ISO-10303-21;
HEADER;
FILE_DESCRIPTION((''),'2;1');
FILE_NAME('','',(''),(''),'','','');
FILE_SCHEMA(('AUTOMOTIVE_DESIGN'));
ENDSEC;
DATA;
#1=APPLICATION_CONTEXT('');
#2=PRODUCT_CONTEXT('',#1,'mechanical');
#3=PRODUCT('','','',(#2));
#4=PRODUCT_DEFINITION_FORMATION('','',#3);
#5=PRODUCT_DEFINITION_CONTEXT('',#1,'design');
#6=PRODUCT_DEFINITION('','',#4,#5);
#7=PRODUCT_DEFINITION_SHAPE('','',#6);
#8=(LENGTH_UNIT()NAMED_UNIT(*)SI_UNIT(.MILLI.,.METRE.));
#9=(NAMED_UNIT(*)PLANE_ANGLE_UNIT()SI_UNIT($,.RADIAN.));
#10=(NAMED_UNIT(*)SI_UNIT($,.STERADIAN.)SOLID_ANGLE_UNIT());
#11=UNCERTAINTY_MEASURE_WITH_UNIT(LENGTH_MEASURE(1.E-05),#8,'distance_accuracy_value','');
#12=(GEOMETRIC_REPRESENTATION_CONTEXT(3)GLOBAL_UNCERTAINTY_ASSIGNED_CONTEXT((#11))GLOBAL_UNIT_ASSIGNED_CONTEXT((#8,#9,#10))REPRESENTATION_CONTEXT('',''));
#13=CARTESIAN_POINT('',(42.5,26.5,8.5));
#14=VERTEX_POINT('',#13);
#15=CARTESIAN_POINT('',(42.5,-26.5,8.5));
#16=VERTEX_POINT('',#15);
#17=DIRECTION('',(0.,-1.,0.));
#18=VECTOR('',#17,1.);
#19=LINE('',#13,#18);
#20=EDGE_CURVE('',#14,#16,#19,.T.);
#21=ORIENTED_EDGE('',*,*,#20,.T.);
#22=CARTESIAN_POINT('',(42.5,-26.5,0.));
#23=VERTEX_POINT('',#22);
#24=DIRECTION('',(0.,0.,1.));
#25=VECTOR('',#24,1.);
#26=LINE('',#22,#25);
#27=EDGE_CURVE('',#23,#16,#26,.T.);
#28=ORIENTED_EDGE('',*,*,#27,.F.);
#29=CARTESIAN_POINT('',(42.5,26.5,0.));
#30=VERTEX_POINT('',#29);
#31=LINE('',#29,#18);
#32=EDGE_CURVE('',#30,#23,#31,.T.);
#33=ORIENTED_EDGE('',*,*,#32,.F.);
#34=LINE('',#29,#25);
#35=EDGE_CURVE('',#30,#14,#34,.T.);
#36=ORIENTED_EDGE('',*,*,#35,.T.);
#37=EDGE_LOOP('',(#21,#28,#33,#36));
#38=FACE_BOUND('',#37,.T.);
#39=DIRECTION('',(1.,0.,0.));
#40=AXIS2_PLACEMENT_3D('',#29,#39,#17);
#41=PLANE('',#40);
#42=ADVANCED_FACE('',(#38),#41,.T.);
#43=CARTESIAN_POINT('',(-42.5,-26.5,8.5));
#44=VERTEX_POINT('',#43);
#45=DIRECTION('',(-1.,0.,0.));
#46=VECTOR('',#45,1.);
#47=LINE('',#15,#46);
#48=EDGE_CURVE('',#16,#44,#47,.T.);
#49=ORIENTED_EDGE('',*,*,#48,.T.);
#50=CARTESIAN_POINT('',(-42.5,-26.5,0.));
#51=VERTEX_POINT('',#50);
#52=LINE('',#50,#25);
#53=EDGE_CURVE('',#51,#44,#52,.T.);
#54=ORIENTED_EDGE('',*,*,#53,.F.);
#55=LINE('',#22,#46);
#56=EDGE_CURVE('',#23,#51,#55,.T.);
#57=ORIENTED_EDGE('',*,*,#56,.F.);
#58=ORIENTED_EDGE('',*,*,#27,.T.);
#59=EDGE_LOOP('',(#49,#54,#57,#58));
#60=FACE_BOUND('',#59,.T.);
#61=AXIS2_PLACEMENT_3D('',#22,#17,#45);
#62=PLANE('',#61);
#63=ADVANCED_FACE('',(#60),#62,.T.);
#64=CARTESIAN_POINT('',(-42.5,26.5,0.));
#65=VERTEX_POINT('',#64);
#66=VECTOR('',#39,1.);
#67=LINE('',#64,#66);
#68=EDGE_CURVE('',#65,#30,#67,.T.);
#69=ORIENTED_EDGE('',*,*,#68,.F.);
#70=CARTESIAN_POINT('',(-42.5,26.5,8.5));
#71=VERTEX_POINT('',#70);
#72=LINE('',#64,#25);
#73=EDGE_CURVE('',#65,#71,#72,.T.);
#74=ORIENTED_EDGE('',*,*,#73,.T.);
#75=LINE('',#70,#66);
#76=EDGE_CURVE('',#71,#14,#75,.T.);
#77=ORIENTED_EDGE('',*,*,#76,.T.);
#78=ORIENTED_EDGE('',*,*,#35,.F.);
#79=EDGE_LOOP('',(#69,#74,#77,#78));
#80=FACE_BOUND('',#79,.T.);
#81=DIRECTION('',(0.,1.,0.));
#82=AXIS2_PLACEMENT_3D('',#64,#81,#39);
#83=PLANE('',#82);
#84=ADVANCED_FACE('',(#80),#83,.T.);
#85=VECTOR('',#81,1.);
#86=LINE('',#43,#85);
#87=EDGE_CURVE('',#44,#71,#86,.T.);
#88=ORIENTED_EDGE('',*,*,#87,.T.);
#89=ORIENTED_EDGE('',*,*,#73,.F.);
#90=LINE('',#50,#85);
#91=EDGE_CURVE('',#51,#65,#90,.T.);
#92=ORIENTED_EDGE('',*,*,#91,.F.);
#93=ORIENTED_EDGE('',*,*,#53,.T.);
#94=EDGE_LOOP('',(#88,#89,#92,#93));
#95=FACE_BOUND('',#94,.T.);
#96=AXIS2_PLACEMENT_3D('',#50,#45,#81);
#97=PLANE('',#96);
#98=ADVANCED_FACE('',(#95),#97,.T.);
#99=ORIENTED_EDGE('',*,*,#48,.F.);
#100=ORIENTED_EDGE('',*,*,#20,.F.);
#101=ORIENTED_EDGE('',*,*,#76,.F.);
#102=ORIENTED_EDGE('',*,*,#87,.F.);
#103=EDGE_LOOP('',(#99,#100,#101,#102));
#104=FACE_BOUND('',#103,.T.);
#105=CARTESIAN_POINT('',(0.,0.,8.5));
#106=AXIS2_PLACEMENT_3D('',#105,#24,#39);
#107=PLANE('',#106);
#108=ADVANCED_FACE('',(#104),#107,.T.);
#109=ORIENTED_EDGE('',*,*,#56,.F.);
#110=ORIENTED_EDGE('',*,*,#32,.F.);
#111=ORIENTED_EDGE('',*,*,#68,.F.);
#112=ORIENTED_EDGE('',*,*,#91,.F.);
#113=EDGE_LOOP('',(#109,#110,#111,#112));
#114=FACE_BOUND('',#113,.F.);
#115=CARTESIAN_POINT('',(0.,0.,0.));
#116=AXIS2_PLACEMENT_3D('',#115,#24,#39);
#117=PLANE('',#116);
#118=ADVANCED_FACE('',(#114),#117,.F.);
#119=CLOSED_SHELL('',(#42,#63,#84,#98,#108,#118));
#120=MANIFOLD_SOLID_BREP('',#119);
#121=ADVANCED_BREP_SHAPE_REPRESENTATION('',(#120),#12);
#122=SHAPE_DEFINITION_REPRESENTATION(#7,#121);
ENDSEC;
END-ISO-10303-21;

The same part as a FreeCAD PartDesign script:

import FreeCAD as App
import Part
import Sketcher

doc = App.newDocument("Part")
params = doc.addObject("Spreadsheet::Sheet", "Params")
for row, (alias, value) in enumerate([
    ("sketch1_width", "85 mm"),
    ("sketch1_height", "53 mm"),
    ("pad1_length", "8.5 mm"),
], start=1):
    params.set(f"A{row}", alias)
    params.set(f"B{row}", "=" + value)
    params.setAlias(f"B{row}", alias)

body = doc.addObject("PartDesign::Body", "Body")

# Sketch on XY plane
sketch1 = doc.addObject("Sketcher::SketchObject", "Sketch")
body.addObject(sketch1)
sketch1.AttachmentSupport = (doc.XY_Plane, [""])
sketch1.MapMode = "FlatFace"
sketch1.addGeometry([
    Part.LineSegment(App.Vector(42, 26, 0), App.Vector(-42, 26, 0)),
    Part.LineSegment(App.Vector(-42, 26, 0), App.Vector(-42, -26, 0)),
    Part.LineSegment(App.Vector(-42, -26, 0), App.Vector(42, -26, 0)),
    Part.LineSegment(App.Vector(42, -26, 0), App.Vector(42, 26, 0)),
], False)
sketch1.addConstraint([
    Sketcher.Constraint("Coincident", 0, 2, 1, 1),
    Sketcher.Constraint("Coincident", 1, 2, 2, 1),
    Sketcher.Constraint("Coincident", 2, 2, 3, 1),
    Sketcher.Constraint("Coincident", 3, 2, 0, 1),
    Sketcher.Constraint("Horizontal", 0),
    Sketcher.Constraint("Vertical", 1),
    Sketcher.Constraint("Horizontal", 2),
    Sketcher.Constraint("Vertical", 3),
    Sketcher.Constraint("Symmetric", 0, 2, 2, 2, -1, 1),
    Sketcher.Constraint("DistanceX", 0, 2, 0, 1, 85.0),
    Sketcher.Constraint("DistanceY", 1, 2, 1, 1, 53.0),
])
sketch1.setExpression("Constraints[9]", "Params.sketch1_width")
sketch1.setExpression("Constraints[10]", "Params.sketch1_height")
pad1 = doc.addObject("PartDesign::Pad", "Pad")
body.addObject(pad1)
pad1.Profile = sketch1
pad1.setExpression("Length", "Params.pad1_length")

doc.recompute()
